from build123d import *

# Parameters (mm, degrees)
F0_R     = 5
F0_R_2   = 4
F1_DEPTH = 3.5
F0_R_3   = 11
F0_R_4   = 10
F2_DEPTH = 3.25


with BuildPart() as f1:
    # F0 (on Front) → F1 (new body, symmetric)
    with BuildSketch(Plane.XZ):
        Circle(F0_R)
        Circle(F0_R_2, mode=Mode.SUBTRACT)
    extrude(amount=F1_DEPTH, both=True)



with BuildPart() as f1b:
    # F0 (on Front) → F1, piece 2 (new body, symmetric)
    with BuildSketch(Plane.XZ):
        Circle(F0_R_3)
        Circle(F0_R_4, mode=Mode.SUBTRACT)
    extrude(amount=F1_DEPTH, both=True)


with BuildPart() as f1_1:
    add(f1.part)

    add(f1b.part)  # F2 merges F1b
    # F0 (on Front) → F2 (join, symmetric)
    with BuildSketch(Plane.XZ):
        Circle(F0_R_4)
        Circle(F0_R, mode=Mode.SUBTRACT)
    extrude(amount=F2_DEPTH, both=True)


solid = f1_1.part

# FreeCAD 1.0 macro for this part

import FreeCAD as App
import Part
import Sketcher
Q = App.Units.Quantity

doc = App.newDocument("Part")
params = doc.addObject("Spreadsheet::Sheet", "Params")
for row, (alias, value) in enumerate([
    ("sketch1_diameter", "10 mm"),
    ("sketch1_diameter2", "8 mm"),
    ("pad1_length", "7 mm"),
    ("sketch2_diameter", "22 mm"),
    ("sketch2_diameter2", "20 mm"),
    ("pad2_length", "7 mm"),
    ("sketch3_diameter", "20 mm"),
    ("sketch3_diameter2", "10 mm"),
    ("pad3_length", "6.5 mm"),
], start=1):
    params.set(f"A{row}", alias)
    params.set(f"B{row}", "=" + value)
    params.setAlias(f"B{row}", alias)

body = doc.addObject("PartDesign::Body", "Body")

# Sketch on XZ plane
sketch1 = doc.addObject("Sketcher::SketchObject", "Sketch")
body.addObject(sketch1)
sketch1.AttachmentSupport = (doc.XZ_Plane, [""])
sketch1.MapMode = "FlatFace"
sketch1.addGeometry([
    Part.Circle(App.Vector(0, 0, 0), App.Vector(0, 0, 1), 5),
    Part.Circle(App.Vector(0, 0, 0), App.Vector(0, 0, 1), 4),
], False)
sketch1.addConstraint([
    Sketcher.Constraint("Coincident", 0, 3, -1, 1),
    Sketcher.Constraint("Coincident", 1, 3, -1, 1),
    Sketcher.Constraint("Diameter", 0, Q("10 mm")),
    Sketcher.Constraint("Diameter", 1, Q("8 mm")),
])
sketch1.setExpression("Constraints[2]", "Params.sketch1_diameter")
sketch1.setExpression("Constraints[3]", "Params.sketch1_diameter2")
pad1 = doc.addObject("PartDesign::Pad", "Pad")
body.addObject(pad1)
pad1.Profile = sketch1
pad1.setExpression("Length", "Params.pad1_length")
pad1.Midplane = True
body2 = doc.addObject("PartDesign::Body", "Body001")

# Sketch on XZ plane
sketch2 = doc.addObject("Sketcher::SketchObject", "Sketch001")
body2.addObject(sketch2)
sketch2.AttachmentSupport = (doc.getObject("XZ_Plane001"), [""])
sketch2.MapMode = "FlatFace"
sketch2.addGeometry([
    Part.Circle(App.Vector(0, 0, 0), App.Vector(0, 0, 1), 11),
    Part.Circle(App.Vector(0, 0, 0), App.Vector(0, 0, 1), 10),
], False)
sketch2.addConstraint([
    Sketcher.Constraint("Coincident", 0, 3, -1, 1),
    Sketcher.Constraint("Coincident", 1, 3, -1, 1),
    Sketcher.Constraint("Diameter", 0, Q("22 mm")),
    Sketcher.Constraint("Diameter", 1, Q("20 mm")),
])
sketch2.setExpression("Constraints[2]", "Params.sketch2_diameter")
sketch2.setExpression("Constraints[3]", "Params.sketch2_diameter2")
pad2 = doc.addObject("PartDesign::Pad", "Pad001")
body2.addObject(pad2)
pad2.Profile = sketch2
pad2.setExpression("Length", "Params.pad2_length")
pad2.Midplane = True
body.AllowCompound = True
doc.recompute()

boolean = doc.addObject("PartDesign::Boolean", "Boolean")
body.addObject(boolean)
boolean.Type = "Fuse"
boolean.addObjects([body2])

# Sketch on XZ plane
sketch3 = doc.addObject("Sketcher::SketchObject", "Sketch002")
body.addObject(sketch3)
sketch3.AttachmentSupport = (doc.XZ_Plane, [""])
sketch3.MapMode = "FlatFace"
sketch3.addGeometry([
    Part.Circle(App.Vector(0, 0, 0), App.Vector(0, 0, 1), 10),
    Part.Circle(App.Vector(0, 0, 0), App.Vector(0, 0, 1), 5),
], False)
sketch3.addConstraint([
    Sketcher.Constraint("Coincident", 0, 3, -1, 1),
    Sketcher.Constraint("Coincident", 1, 3, -1, 1),
    Sketcher.Constraint("Diameter", 0, Q("20 mm")),
    Sketcher.Constraint("Diameter", 1, Q("10 mm")),
])
sketch3.setExpression("Constraints[2]", "Params.sketch3_diameter")
sketch3.setExpression("Constraints[3]", "Params.sketch3_diameter2")
pad3 = doc.addObject("PartDesign::Pad", "Pad002")
body.addObject(pad3)
pad3.Profile = sketch3
pad3.setExpression("Length", "Params.pad3_length")
pad3.Midplane = True

doc.recompute()
